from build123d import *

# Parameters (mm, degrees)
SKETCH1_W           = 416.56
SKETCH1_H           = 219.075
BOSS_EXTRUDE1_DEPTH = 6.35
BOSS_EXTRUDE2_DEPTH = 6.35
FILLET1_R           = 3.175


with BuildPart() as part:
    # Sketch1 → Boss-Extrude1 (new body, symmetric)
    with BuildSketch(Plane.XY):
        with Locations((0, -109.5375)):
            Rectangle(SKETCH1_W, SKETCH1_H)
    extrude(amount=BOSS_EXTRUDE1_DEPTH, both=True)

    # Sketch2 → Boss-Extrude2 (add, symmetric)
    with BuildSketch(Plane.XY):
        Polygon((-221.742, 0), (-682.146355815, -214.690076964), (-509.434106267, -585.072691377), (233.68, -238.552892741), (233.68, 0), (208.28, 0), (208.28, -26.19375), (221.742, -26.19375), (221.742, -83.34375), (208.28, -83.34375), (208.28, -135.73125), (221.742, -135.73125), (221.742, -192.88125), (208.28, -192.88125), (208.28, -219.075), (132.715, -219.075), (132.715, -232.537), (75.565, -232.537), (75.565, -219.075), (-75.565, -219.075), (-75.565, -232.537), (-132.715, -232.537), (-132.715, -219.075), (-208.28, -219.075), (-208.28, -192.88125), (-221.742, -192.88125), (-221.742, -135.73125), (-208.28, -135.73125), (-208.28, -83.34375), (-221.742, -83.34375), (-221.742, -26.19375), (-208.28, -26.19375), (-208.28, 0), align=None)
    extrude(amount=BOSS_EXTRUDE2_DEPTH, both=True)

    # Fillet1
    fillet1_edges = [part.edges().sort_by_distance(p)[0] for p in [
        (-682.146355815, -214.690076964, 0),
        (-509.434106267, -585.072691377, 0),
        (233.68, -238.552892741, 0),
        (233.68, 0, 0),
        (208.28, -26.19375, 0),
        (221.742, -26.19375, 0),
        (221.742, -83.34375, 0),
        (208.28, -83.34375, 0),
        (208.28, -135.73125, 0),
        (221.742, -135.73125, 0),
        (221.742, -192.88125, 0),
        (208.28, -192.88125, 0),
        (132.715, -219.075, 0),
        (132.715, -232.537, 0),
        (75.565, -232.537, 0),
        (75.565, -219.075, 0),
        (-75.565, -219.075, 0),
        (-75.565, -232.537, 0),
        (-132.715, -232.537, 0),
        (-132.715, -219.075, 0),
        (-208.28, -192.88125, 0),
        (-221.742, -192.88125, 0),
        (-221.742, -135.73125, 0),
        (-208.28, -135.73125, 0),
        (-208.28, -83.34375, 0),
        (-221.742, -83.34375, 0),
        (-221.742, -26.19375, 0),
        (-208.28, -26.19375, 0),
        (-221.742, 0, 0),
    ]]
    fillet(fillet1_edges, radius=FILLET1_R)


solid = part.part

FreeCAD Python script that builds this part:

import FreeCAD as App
import Part
import Sketcher
from FreeCAD import Vector
Q = App.Units.Quantity


def edges_at(feature, points):
    """Names of the edges that pass closest to the given points."""
    edges = feature.Shape.Edges
    near = lambda p: min(range(len(edges)), key=lambda i: edges[i].distToShape(Part.Vertex(*p))[0])
    return sorted({f"Edge{near(p) + 1}" for p in points})


def add_polygon(sketch, points):
    """Adds a closed chain of lines whose ends are joined by coincident constraints."""
    first, n = sketch.GeometryCount, len(points)
    for a, b in zip(points, points[1:] + points[:1]):
        sketch.addGeometry(Part.LineSegment(App.Vector(*a, 0), App.Vector(*b, 0)), False)
    for i in range(n):
        sketch.addConstraint(Sketcher.Constraint("Coincident", first + i, 2, first + (i + 1) % n, 1))

doc = App.newDocument("Part")
body = doc.addObject("PartDesign::Body", "Body")

# Sketch on XY plane
sketch1 = doc.addObject("Sketcher::SketchObject", "Sketch")
body.addObject(sketch1)
sketch1.AttachmentSupport = (doc.XY_Plane, [""])
sketch1.MapMode = "FlatFace"
add_polygon(sketch1, [(-208, 0), (-208, -219), (208, -219), (208, 0)])  # lines 0-3
sketch1.addConstraint(Sketcher.Constraint("Vertical", 0))
sketch1.addConstraint(Sketcher.Constraint("Horizontal", 1))
sketch1.addConstraint(Sketcher.Constraint("Vertical", 2))
sketch1.addConstraint(Sketcher.Constraint("Horizontal", 3))
sketch1.addConstraint(Sketcher.Constraint("Symmetric", 2, 2, 3, 2, -1, 1))
sketch1.addConstraint(Sketcher.Constraint("DistanceX", 1, 1, 1, 2, Q("16.4 in")))
sketch1.addConstraint(Sketcher.Constraint("DistanceY", 0, 2, 0, 1, Q("8.625 in")))
pad1 = doc.addObject("PartDesign::Pad", "Pad")
body.addObject(pad1)
pad1.Profile = sketch1
pad1.Length = Q("0.5 in")
pad1.Midplane = True

# Sketch on XY plane
sketch2 = doc.addObject("Sketcher::SketchObject", "Sketch001")
body.addObject(sketch2)
sketch2.AttachmentSupport = (doc.XY_Plane, [""])
sketch2.MapMode = "FlatFace"
add_polygon(sketch2, [(-222, 0), (-682, -215), (-509, -585), (234, -239), (234, 0), (208, 0), (208, -26), (222, -26), (222, -83), (208, -83), (208, -136), (222, -136), (222, -193), (208, -193), (208, -219), (133, -219), (133, -233), (76, -233), (76, -219), (-76, -219), (-76, -233), (-133, -233), (-133, -219), (-208, -219), (-208, -193), (-222, -193), (-222, -136), (-208, -136), (-208, -83), (-222, -83), (-222, -26), (-208, -26), (-208, 0)])  # lines 0-32
sketch2.addConstraint(Sketcher.Constraint("Vertical", 3))
sketch2.addConstraint(Sketcher.Constraint("Horizontal", 4))
sketch2.addConstraint(Sketcher.Constraint("Vertical", 5))
sketch2.addConstraint(Sketcher.Constraint("Horizontal", 6))
sketch2.addConstraint(Sketcher.Constraint("Vertical", 7))
sketch2.addConstraint(Sketcher.Constraint("Horizontal", 8))
sketch2.addConstraint(Sketcher.Constraint("Vertical", 9))
sketch2.addConstraint(Sketcher.Constraint("Horizontal", 10))
sketch2.addConstraint(Sketcher.Constraint("Vertical", 11))
sketch2.addConstraint(Sketcher.Constraint("Horizontal", 12))
sketch2.addConstraint(Sketcher.Constraint("Vertical", 13))
sketch2.addConstraint(Sketcher.Constraint("Horizontal", 14))
sketch2.addConstraint(Sketcher.Constraint("Vertical", 15))
sketch2.addConstraint(Sketcher.Constraint("Horizontal", 16))
sketch2.addConstraint(Sketcher.Constraint("Vertical", 17))
sketch2.addConstraint(Sketcher.Constraint("Horizontal", 18))
sketch2.addConstraint(Sketcher.Constraint("Vertical", 19))
sketch2.addConstraint(Sketcher.Constraint("Horizontal", 20))
sketch2.addConstraint(Sketcher.Constraint("Vertical", 21))
sketch2.addConstraint(Sketcher.Constraint("Horizontal", 22))
sketch2.addConstraint(Sketcher.Constraint("Vertical", 23))
sketch2.addConstraint(Sketcher.Constraint("Horizontal", 24))
sketch2.addConstraint(Sketcher.Constraint("Vertical", 25))
sketch2.addConstraint(Sketcher.Constraint("Horizontal", 26))
sketch2.addConstraint(Sketcher.Constraint("Vertical", 27))
sketch2.addConstraint(Sketcher.Constraint("Horizontal", 28))
sketch2.addConstraint(Sketcher.Constraint("Vertical", 29))
sketch2.addConstraint(Sketcher.Constraint("Horizontal", 30))
sketch2.addConstraint(Sketcher.Constraint("Vertical", 31))
sketch2.addConstraint(Sketcher.Constraint("Horizontal", 32))
sketch2.addConstraint(Sketcher.Constraint("Symmetric", 4, 2, 31, 2, -1, 1))
sketch2.addConstraint(Sketcher.Constraint("Symmetric", 16, 2, 19, 2, -2))
sketch2.addConstraint(Sketcher.Constraint("Symmetric", 14, 2, 21, 2, -2))
sketch2.addConstraint(Sketcher.Constraint("Symmetric", 12, 2, 23, 2, -2))
sketch2.addConstraint(Sketcher.Constraint("Symmetric", 10, 2, 25, 2, -2))
sketch2.addConstraint(Sketcher.Constraint("Symmetric", 8, 2, 27, 2, -2))
sketch2.addConstraint(Sketcher.Constraint("Symmetric", 6, 2, 29, 2, -2))
sketch2.addConstraint(Sketcher.Constraint("PointOnObject", 3, 2, -1))
sketch2.addConstraint(Sketcher.Constraint("Perpendicular", 0, 1))
sketch2.addConstraint(Sketcher.Constraint("Perpendicular", 1, 2))
sketch2.addConstraint(Sketcher.Constraint("Horizontal", 14, 2, 17, 2))
sketch2.addConstraint(Sketcher.Constraint("Vertical", 5, 2, 8, 2))
sketch2.addConstraint(Sketcher.Constraint("Vertical", 7, 2, 10, 2))
sketch2.addConstraint(Sketcher.Constraint("Vertical", 9, 2, 12, 2))
sketch2.addConstraint(Sketcher.Constraint("Vertical", 29, 2, 32, 2))
sketch2.addConstraint(Sketcher.Constraint("Equal", 20, 7))
sketch2.addConstraint(Sketcher.Constraint("Equal", 7, 11))
sketch2.addConstraint(Sketcher.Constraint("Equal", 5, 13))
sketch2.addConstraint(Sketcher.Constraint("Equal", 32, 15))
sketch2.addConstraint(Sketcher.Constraint("DistanceX", 4, 2, 4, 1, Q("1 in")))
sketch2.addConstraint(Sketcher.Constraint("Distance", 0, Q("20 in")))
sketch2.addConstraint(Sketcher.Constraint("Angle", 0, Q("-155 deg")))
sketch2.addConstraint(Sketcher.Constraint("DistanceX", 6, 1, 6, 2, Q("0.53 in")))
sketch2.addConstraint(Sketcher.Constraint("DistanceX", 16, 2, 16, 1, Q("2.25 in")))
sketch2.addConstraint(Sketcher.Constraint("DistanceX", 18, 2, 18, 1, Q("5.95 in")))
sketch2.addConstraint(Sketcher.Constraint("DistanceX", -1, 1, 2, 2, Q("9.2 in")))
sketch2.addConstraint(Sketcher.Constraint("DistanceY", 5, 2, 5, 1, Q("1.03125 in")))
sketch2.addConstraint(Sketcher.Constraint("DistanceY", 9, 2, 9, 1, Q("2.0625 in")))
sketch2.addConstraint(Sketcher.Constraint("Distance", 1, Q("408.671998 mm")))
pad2 = doc.addObject("PartDesign::Pad", "Pad001")
body.addObject(pad2)
pad2.Profile = sketch2
pad2.Length = Q("0.5 in")
pad2.Midplane = True
doc.recompute()

fillet = doc.addObject("PartDesign::Fillet", "Fillet")
body.addObject(fillet)
fillet.Base = (pad2, edges_at(pad2, [
    (-682.146, -214.69, 0),
    (-509.434, -585.073, 0),
    (233.68, -238.553, 0),
    (233.68, 0, 0),
    (208.28, -26.194, 0),
    (221.742, -26.194, 0),
    (221.742, -83.344, 0),
    (208.28, -83.344, 0),
    (208.28, -135.731, 0),
    (221.742, -135.731, 0),
    (221.742, -192.881, 0),
    (208.28, -192.881, 0),
    (132.715, -219.075, 0),
    (132.715, -232.537, 0),
    (75.565, -232.537, 0),
    (75.565, -219.075, 0),
    (-75.565, -219.075, 0),
    (-75.565, -232.537, 0),
    (-132.715, -232.537, 0),
    (-132.715, -219.075, 0),
    (-208.28, -192.881, 0),
    (-221.742, -192.881, 0),
    (-221.742, -135.731, 0),
    (-208.28, -135.731, 0),
    (-208.28, -83.344, 0),
    (-221.742, -83.344, 0),
    (-221.742, -26.194, 0),
    (-208.28, -26.194, 0),
    (-221.742, 0, 0),
]))
fillet.Radius = Q("0.125 in")

doc.recompute()
